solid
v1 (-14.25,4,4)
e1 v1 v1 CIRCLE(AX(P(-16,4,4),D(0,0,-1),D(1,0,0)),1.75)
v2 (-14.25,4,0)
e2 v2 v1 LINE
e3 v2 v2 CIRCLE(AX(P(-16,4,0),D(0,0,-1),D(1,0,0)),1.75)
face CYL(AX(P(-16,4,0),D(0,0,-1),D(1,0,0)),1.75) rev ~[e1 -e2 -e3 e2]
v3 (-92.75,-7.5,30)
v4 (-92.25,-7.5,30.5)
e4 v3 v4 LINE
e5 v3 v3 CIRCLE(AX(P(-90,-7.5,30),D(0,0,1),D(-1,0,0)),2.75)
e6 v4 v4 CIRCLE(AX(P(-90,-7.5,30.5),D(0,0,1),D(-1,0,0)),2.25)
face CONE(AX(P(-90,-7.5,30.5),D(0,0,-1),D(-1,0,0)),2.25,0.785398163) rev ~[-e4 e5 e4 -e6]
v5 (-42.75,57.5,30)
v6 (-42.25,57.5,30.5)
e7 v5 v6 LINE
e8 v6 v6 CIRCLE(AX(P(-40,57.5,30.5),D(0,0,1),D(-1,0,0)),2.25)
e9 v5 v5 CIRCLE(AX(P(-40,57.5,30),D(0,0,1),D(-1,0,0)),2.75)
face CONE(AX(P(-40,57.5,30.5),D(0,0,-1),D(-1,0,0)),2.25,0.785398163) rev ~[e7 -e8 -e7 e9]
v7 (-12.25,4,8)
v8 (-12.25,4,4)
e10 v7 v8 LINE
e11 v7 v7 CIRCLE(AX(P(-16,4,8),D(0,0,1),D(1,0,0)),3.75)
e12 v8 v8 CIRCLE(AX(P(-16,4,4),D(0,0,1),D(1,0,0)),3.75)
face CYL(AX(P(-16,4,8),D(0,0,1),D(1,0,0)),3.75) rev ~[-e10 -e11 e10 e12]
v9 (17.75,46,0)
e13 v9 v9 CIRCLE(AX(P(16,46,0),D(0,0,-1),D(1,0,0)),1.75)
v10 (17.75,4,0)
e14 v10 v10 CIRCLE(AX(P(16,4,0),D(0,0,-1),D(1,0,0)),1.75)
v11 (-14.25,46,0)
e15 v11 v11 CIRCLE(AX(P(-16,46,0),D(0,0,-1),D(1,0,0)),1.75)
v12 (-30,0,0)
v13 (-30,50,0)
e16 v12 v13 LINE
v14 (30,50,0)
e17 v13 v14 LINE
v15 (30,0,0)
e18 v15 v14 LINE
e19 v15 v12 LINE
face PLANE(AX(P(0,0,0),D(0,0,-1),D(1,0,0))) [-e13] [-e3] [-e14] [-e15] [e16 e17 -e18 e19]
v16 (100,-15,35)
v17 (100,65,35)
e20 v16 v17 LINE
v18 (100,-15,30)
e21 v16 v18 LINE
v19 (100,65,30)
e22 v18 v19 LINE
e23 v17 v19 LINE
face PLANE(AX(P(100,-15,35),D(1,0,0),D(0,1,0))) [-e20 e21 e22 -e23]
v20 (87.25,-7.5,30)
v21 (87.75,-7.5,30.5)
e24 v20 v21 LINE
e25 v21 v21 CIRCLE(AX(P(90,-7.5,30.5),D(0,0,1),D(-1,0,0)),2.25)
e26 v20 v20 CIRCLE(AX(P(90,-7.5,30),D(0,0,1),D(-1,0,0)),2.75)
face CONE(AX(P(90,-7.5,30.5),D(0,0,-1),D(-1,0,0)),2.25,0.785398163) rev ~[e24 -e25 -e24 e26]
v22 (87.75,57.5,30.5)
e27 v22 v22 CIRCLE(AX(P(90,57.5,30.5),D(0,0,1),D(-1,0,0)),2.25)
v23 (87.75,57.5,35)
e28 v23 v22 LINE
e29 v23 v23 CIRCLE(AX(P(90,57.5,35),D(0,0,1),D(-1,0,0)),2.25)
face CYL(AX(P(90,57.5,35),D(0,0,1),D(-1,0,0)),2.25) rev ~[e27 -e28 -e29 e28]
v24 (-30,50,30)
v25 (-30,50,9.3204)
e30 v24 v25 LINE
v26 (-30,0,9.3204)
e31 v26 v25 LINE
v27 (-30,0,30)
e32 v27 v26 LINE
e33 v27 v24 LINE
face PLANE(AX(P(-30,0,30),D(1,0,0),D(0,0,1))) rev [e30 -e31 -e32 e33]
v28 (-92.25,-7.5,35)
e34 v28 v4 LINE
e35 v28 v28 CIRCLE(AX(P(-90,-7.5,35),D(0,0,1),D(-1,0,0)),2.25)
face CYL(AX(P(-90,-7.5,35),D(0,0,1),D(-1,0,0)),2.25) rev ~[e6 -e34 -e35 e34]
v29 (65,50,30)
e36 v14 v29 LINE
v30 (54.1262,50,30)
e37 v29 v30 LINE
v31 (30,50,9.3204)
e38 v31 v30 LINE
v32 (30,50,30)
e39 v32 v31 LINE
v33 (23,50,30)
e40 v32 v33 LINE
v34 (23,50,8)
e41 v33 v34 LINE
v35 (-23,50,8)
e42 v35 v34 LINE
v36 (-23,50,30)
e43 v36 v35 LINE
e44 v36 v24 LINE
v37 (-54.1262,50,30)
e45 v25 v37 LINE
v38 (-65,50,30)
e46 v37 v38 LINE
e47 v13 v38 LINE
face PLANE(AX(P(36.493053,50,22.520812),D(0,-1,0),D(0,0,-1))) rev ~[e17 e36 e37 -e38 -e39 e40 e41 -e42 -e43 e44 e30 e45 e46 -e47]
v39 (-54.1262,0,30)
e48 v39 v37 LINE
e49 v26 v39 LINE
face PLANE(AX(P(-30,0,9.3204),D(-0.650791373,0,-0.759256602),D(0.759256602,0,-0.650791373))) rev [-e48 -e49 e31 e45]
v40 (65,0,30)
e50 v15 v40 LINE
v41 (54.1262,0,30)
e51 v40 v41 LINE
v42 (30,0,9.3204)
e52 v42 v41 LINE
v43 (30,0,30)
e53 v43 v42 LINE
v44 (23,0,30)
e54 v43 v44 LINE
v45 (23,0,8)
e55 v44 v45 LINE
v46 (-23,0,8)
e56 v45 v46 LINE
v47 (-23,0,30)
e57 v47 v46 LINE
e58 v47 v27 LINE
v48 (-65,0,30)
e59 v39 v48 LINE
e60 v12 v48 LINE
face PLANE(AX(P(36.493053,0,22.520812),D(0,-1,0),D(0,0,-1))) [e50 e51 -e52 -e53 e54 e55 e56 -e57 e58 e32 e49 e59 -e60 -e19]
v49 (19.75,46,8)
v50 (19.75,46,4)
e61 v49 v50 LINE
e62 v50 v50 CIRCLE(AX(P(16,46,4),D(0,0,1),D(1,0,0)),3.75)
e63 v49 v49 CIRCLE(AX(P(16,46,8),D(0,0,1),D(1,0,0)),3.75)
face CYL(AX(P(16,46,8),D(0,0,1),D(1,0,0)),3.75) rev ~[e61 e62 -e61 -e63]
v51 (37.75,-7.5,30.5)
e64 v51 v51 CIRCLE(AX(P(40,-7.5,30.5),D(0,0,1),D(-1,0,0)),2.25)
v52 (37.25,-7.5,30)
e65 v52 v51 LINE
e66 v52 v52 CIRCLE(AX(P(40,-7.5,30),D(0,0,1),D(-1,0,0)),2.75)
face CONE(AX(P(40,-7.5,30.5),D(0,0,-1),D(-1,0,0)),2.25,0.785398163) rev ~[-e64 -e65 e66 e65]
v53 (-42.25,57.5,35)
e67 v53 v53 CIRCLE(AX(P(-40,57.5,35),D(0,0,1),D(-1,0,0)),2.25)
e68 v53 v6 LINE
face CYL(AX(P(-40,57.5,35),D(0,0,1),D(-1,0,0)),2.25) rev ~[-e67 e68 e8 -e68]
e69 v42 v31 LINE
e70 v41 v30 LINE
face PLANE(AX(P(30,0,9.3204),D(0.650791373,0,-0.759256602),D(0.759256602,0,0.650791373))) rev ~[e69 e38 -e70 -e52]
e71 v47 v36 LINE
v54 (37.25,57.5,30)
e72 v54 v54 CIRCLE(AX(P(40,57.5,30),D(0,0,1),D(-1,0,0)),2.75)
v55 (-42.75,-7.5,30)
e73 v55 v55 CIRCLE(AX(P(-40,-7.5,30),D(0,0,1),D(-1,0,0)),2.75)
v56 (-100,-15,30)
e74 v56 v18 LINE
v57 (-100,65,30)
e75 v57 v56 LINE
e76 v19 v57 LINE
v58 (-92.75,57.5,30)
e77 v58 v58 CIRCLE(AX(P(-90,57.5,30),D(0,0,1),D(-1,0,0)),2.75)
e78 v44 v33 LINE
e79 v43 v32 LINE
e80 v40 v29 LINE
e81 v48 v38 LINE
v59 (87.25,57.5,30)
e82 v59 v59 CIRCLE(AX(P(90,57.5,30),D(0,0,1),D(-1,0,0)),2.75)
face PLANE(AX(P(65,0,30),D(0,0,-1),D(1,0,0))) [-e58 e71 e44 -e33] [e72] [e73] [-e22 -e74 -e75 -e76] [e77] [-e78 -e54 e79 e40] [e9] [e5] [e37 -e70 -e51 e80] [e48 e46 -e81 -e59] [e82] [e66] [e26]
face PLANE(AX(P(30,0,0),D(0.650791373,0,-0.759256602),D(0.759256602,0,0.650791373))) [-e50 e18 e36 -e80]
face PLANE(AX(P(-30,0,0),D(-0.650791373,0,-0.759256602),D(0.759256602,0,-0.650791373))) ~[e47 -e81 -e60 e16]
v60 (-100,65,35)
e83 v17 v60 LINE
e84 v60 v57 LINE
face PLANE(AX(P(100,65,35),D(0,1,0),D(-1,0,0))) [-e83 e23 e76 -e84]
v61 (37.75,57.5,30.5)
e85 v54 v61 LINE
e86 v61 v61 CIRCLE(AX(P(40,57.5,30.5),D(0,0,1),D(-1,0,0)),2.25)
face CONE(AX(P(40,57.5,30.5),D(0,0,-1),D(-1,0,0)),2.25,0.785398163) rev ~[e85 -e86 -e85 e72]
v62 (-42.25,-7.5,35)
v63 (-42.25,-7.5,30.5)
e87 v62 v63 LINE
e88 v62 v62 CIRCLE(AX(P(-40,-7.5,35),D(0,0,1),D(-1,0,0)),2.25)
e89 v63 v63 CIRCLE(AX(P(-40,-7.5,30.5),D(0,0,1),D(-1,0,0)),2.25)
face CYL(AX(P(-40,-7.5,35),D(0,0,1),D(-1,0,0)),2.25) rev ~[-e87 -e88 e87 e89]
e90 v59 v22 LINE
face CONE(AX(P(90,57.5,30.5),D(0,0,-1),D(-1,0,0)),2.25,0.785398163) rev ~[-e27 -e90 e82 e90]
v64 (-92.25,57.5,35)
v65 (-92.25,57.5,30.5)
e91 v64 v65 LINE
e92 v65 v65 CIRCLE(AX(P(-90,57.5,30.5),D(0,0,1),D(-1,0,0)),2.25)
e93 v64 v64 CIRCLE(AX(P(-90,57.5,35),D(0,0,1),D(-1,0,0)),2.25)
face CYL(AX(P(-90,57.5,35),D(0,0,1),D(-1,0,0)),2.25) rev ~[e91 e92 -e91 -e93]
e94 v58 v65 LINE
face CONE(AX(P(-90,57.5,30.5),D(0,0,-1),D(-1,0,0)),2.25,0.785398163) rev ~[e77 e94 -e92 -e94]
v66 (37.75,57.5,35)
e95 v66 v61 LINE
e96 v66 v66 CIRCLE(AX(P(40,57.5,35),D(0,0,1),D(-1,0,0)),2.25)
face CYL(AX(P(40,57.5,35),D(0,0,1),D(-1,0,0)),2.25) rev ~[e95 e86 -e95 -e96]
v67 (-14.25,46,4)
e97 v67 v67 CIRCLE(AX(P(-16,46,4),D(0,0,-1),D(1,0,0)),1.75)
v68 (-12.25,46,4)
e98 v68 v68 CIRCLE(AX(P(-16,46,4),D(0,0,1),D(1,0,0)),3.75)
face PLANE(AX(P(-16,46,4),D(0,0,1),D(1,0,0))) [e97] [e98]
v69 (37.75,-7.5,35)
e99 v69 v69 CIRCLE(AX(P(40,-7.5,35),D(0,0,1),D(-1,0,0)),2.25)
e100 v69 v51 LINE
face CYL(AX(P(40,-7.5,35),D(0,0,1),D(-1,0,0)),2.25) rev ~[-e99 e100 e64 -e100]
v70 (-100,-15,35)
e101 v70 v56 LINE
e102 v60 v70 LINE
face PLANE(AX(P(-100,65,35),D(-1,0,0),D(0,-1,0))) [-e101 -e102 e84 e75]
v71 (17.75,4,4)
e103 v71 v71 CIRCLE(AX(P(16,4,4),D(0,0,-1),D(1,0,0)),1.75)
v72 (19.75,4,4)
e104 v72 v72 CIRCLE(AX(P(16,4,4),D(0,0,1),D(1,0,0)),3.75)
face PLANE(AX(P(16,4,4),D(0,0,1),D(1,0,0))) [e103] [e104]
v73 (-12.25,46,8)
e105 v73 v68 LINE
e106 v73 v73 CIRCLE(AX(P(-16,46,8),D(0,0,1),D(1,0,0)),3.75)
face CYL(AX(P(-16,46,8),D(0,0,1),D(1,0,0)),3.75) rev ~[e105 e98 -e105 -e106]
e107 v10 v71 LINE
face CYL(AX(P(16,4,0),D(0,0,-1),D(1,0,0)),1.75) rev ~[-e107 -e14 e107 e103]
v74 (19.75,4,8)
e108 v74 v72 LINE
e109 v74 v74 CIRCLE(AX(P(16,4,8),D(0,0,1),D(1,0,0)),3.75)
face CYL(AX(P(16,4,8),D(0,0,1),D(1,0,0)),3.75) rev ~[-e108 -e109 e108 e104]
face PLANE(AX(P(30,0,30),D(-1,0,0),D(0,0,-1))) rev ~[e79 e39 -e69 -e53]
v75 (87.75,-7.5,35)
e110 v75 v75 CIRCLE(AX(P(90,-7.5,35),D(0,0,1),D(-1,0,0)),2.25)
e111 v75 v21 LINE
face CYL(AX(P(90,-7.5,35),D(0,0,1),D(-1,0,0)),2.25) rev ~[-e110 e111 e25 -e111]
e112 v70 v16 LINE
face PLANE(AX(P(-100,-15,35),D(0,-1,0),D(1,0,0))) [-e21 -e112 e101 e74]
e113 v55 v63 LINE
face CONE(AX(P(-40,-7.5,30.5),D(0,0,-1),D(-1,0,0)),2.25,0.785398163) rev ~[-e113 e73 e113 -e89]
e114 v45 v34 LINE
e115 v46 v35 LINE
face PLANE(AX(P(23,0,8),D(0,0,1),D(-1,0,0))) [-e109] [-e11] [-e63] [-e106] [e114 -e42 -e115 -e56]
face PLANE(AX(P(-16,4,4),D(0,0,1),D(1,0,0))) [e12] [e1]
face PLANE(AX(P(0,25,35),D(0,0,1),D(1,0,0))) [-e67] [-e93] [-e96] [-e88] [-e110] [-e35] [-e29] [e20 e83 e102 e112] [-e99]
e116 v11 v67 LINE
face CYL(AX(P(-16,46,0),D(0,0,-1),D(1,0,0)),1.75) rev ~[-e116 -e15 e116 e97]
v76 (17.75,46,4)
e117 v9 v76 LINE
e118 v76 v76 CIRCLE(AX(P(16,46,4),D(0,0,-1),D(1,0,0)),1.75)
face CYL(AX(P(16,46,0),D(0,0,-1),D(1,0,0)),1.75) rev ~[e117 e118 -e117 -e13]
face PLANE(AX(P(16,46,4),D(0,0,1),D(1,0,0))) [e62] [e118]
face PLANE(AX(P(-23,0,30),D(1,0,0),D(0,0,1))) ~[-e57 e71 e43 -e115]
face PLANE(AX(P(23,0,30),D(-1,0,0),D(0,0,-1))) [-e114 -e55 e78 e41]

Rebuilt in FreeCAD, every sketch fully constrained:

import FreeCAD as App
import Part
import Sketcher

V = App.Vector


def edges_at(feature, points):
    """Names of the edges that pass closest to the given points."""
    edges = feature.Shape.Edges
    near = lambda p: min(range(len(edges)), key=lambda i: edges[i].distToShape(Part.Vertex(*p))[0])
    return sorted({f"Edge{near(p) + 1}" for p in points})


def add_polygon(sketch, points):
    """Adds a closed chain of lines whose ends are joined by coincident constraints."""
    first, n = sketch.GeometryCount, len(points)
    for a, b in zip(points, points[1:] + points[:1]):
        sketch.addGeometry(Part.LineSegment(App.Vector(*a, 0), App.Vector(*b, 0)), False)
    for i in range(n):
        sketch.addConstraint(Sketcher.Constraint("Coincident", first + i, 2, first + (i + 1) % n, 1))

doc = App.newDocument("Part")
body = doc.addObject("PartDesign::Body", "Body")

sketch1 = body.newObject("Sketcher::SketchObject", "Sketch")
sketch1.AttachmentSupport = (doc.getObject("XZ_Plane"), [""])
sketch1.MapMode = "FlatFace"
add_polygon(sketch1, [(0, 0), (30, 0), (65, 30), (90, 30), (90, 35), (0, 35), (0, 30), (23, 30), (23, 8), (0, 8)])
sketch1.addConstraint([
    Sketcher.Constraint("Horizontal", 0),
    Sketcher.Constraint("Horizontal", 2),
    Sketcher.Constraint("Vertical", 3),
    Sketcher.Constraint("Horizontal", 4),
    Sketcher.Constraint("Vertical", 5),
    Sketcher.Constraint("Horizontal", 6),
    Sketcher.Constraint("Vertical", 7),
    Sketcher.Constraint("Horizontal", 8),
    Sketcher.Constraint("Vertical", 9),
    Sketcher.Constraint("Coincident", 9, 2, -1, 1),
    Sketcher.Constraint("PointOnObject", 4, 2, -2),
    Sketcher.Constraint("Horizontal", 2, 2, 5, 2),
    Sketcher.Constraint("DistanceX", 6, 1, 6, 2, 23.0),
    Sketcher.Constraint("DistanceX", 0, 1, 0, 2, 30.0),
    Sketcher.Constraint("DistanceX", 2, 1, 2, 2, 25.0),
    Sketcher.Constraint("DistanceX", 4, 2, 4, 1, 90.0),
    Sketcher.Constraint("DistanceY", 3, 1, 3, 2, 5.0),
    Sketcher.Constraint("DistanceY", 7, 2, 7, 1, 22.0),
    Sketcher.Constraint("DistanceY", 9, 2, 9, 1, 8.0),
])
pad1 = body.newObject("PartDesign::Pad", "Pad")
pad1.Profile = sketch1
pad1.Length = 50
pad1.Reversed = True
doc.recompute()

mirrored = body.newObject("PartDesign::Mirrored", "Mirrored")
mirrored.Originals = [pad1]
mirrored.MirrorPlane = (doc.getObject("YZ_Plane"), [""])
body.Tip = mirrored

sketch2 = body.newObject("Sketcher::SketchObject", "Sketch001")
sketch2.AttachmentSupport = (doc.getObject("XZ_Plane"), [""])
sketch2.MapMode = "FlatFace"
add_polygon(sketch2, [(30, 30), (30, 9), (54, 30)])
sketch2.addConstraint([
    Sketcher.Constraint("Vertical", 0),
    Sketcher.Constraint("Horizontal", 2),
    Sketcher.Constraint("DistanceX", -1, 1, 0, 2, 30.0),
    Sketcher.Constraint("DistanceY", -1, 1, 1, 2, 30.0),
    Sketcher.Constraint("Distance", 1, 31.776),
    Sketcher.Constraint("DistanceX", 2, 2, 2, 1, 24.1262),
])
pocket1 = body.newObject("PartDesign::Pocket", "Pocket")
pocket1.Profile = sketch2
pocket1.Type = "ThroughAll"

sketch3 = body.newObject("Sketcher::SketchObject", "Sketch002")
sketch3.AttachmentSupport = (doc.getObject("XY_Plane"), [""])
sketch3.MapMode = "FlatFace"
sketch3.addGeometry([
    Part.Circle(V(-16, 4, 0), V(0, 0, 1), 1.8),
    Part.Circle(V(16, 4, 0), V(0, 0, 1), 1.8),
    Part.Circle(V(16, 46, 0), V(0, 0, 1), 1.8),
    Part.Circle(V(-16, 46, 0), V(0, 0, 1), 1.8),
], False)
sketch3.addConstraint([
    Sketcher.Constraint("Equal", 0, 1),
    Sketcher.Constraint("Equal", 1, 2),
    Sketcher.Constraint("Equal", 2, 3),
    Sketcher.Constraint("Symmetric", 0, 3, 1, 3, -2),
    Sketcher.Constraint("Symmetric", 2, 3, 3, 3, -2),
    Sketcher.Constraint("Vertical", 1, 3, 2, 3),
    Sketcher.Constraint("Diameter", 0, 3.5),
    Sketcher.Constraint("DistanceX", 0, 3, -1, 1, 16.0),
    Sketcher.Constraint("DistanceY", -1, 1, 0, 3, 4.0),
    Sketcher.Constraint("DistanceY", -1, 1, 2, 3, 46.0),
])
pocket2 = body.newObject("PartDesign::Pocket", "Pocket001")
pocket2.Profile = sketch3
pocket2.Type = "UpToFirst"
pocket2.Reversed = True

sketch4 = body.newObject("Sketcher::SketchObject", "Sketch003")
sketch4.AttachmentSupport = (doc.getObject("XY_Plane"), [""])
sketch4.MapMode = "FlatFace"
sketch4.AttachmentOffset = App.Placement(V(0, 0, 8), App.Rotation())
sketch4.addGeometry([
    Part.Circle(V(-16, 4, 0), V(0, 0, 1), 3.8),
    Part.Circle(V(16, 4, 0), V(0, 0, 1), 3.8),
    Part.Circle(V(-16, 46, 0), V(0, 0, 1), 3.8),
    Part.Circle(V(16, 46, 0), V(0, 0, 1), 3.8),
], False)
sketch4.addConstraint([
    Sketcher.Constraint("Equal", 0, 1),
    Sketcher.Constraint("Equal", 1, 2),
    Sketcher.Constraint("Equal", 2, 3),
    Sketcher.Constraint("Symmetric", 0, 3, 1, 3, -2),
    Sketcher.Constraint("Symmetric", 2, 3, 3, 3, -2),
    Sketcher.Constraint("Vertical", 0, 3, 2, 3),
    Sketcher.Constraint("Diameter", 0, 7.5),
    Sketcher.Constraint("DistanceX", 0, 3, -1, 1, 16.0),
    Sketcher.Constraint("DistanceY", -1, 1, 0, 3, 4.0),
    Sketcher.Constraint("DistanceY", -1, 1, 2, 3, 46.0),
])
pocket3 = body.newObject("PartDesign::Pocket", "Pocket002")
pocket3.Profile = sketch4
pocket3.Length = 4
doc.recompute()

mirrored2 = body.newObject("PartDesign::Mirrored", "Mirrored001")
mirrored2.Originals = [pocket1]
mirrored2.MirrorPlane = (doc.getObject("YZ_Plane"), [""])
body.Tip = mirrored2

sketch5 = body.newObject("Sketcher::SketchObject", "Sketch004")
sketch5.AttachmentSupport = (doc.getObject("XY_Plane"), [""])
sketch5.MapMode = "FlatFace"
sketch5.AttachmentOffset = App.Placement(V(0, 0, 35), App.Rotation())
add_polygon(sketch5, [(100, -15), (100, 65), (-100, 65), (-100, -15)])
sketch5.addConstraint([
    Sketcher.Constraint("Vertical", 0),
    Sketcher.Constraint("Horizontal", 1),
    Sketcher.Constraint("Vertical", 2),
    Sketcher.Constraint("Horizontal", 3),
    Sketcher.Constraint("DistanceX", -1, 1, 0, 2, 100.0),
    Sketcher.Constraint("DistanceX", 1, 2, -1, 1, 100.0),
    Sketcher.Constraint("DistanceY", 0, 1, 0, 2, 80.0),
    Sketcher.Constraint("DistanceY", -1, 1, 0, 2, 65.0),
])
pad2 = body.newObject("PartDesign::Pad", "Pad001")
pad2.Profile = sketch5
pad2.Length = 5
pad2.Reversed = True

sketch6 = body.newObject("Sketcher::SketchObject", "Sketch005")
sketch6.AttachmentSupport = (doc.getObject("XY_Plane"), [""])
sketch6.MapMode = "FlatFace"
sketch6.AttachmentOffset = App.Placement(V(0, 0, 35), App.Rotation())
sketch6.addGeometry([
    Part.Circle(V(90, 57.5, 0), V(0, 0, 1), 2.2),
    Part.Circle(V(40, -7.5, 0), V(0, 0, 1), 2.2),
    Part.Circle(V(40, 57.5, 0), V(0, 0, 1), 2.2),
    Part.Circle(V(-40, -7.5, 0), V(0, 0, 1), 2.2),
    Part.Circle(V(-40, 57.5, 0), V(0, 0, 1), 2.2),
    Part.Circle(V(-90, 57.5, 0), V(0, 0, 1), 2.2),
    Part.Circle(V(-90, -7.5, 0), V(0, 0, 1), 2.2),
    Part.Circle(V(90, -7.5, 0), V(0, 0, 1), 2.2),
], False)
sketch6.addConstraint([
    Sketcher.Constraint("Equal", 0, 1),
    Sketcher.Constraint("Equal", 1, 2),
    Sketcher.Constraint("Equal", 2, 3),
    Sketcher.Constraint("Equal", 3, 4),
    Sketcher.Constraint("Equal", 4, 5),
    Sketcher.Constraint("Equal", 5, 6),
    Sketcher.Constraint("Equal", 6, 7),
    Sketcher.Constraint("Symmetric", 1, 3, 3, 3, -2),
    Sketcher.Constraint("Symmetric", 2, 3, 4, 3, -2),
    Sketcher.Constraint("Symmetric", 0, 3, 5, 3, -2),
    Sketcher.Constraint("Symmetric", 6, 3, 7, 3, -2),
    Sketcher.Constraint("Horizontal", 0, 3, 2, 3),
    Sketcher.Constraint("Horizontal", 3, 3, 6, 3),
    Sketcher.Constraint("Vertical", 1, 3, 2, 3),
    Sketcher.Constraint("Vertical", 5, 3, 6, 3),
    Sketcher.Constraint("DistanceY", 1, 3, 0, 3, 65.0),
    Sketcher.Constraint("Diameter", 0, 4.5),
    Sketcher.Constraint("DistanceX", -1, 1, 0, 3, 90.0),
    Sketcher.Constraint("DistanceX", -1, 1, 1, 3, 40.0),
    Sketcher.Constraint("DistanceY", -1, 1, 0, 3, 57.5),
])
pocket4 = body.newObject("PartDesign::Pocket", "Pocket003")
pocket4.Profile = sketch6
pocket4.Length = 5
doc.recompute()

chamfer = body.newObject("PartDesign::Chamfer", "Chamfer")
chamfer.Base = (pocket4, edges_at(pocket4, [
    (92.25, 57.5, 30),
    (92.25, -7.5, 30),
    (42.25, -7.5, 30),
    (-37.75, -7.5, 30),
    (-87.75, -7.5, 30),
    (-87.75, 57.5, 30),
    (-37.75, 57.5, 30),
    (42.25, 57.5, 30),
]))
chamfer.Size = 0.5

doc.recompute()
